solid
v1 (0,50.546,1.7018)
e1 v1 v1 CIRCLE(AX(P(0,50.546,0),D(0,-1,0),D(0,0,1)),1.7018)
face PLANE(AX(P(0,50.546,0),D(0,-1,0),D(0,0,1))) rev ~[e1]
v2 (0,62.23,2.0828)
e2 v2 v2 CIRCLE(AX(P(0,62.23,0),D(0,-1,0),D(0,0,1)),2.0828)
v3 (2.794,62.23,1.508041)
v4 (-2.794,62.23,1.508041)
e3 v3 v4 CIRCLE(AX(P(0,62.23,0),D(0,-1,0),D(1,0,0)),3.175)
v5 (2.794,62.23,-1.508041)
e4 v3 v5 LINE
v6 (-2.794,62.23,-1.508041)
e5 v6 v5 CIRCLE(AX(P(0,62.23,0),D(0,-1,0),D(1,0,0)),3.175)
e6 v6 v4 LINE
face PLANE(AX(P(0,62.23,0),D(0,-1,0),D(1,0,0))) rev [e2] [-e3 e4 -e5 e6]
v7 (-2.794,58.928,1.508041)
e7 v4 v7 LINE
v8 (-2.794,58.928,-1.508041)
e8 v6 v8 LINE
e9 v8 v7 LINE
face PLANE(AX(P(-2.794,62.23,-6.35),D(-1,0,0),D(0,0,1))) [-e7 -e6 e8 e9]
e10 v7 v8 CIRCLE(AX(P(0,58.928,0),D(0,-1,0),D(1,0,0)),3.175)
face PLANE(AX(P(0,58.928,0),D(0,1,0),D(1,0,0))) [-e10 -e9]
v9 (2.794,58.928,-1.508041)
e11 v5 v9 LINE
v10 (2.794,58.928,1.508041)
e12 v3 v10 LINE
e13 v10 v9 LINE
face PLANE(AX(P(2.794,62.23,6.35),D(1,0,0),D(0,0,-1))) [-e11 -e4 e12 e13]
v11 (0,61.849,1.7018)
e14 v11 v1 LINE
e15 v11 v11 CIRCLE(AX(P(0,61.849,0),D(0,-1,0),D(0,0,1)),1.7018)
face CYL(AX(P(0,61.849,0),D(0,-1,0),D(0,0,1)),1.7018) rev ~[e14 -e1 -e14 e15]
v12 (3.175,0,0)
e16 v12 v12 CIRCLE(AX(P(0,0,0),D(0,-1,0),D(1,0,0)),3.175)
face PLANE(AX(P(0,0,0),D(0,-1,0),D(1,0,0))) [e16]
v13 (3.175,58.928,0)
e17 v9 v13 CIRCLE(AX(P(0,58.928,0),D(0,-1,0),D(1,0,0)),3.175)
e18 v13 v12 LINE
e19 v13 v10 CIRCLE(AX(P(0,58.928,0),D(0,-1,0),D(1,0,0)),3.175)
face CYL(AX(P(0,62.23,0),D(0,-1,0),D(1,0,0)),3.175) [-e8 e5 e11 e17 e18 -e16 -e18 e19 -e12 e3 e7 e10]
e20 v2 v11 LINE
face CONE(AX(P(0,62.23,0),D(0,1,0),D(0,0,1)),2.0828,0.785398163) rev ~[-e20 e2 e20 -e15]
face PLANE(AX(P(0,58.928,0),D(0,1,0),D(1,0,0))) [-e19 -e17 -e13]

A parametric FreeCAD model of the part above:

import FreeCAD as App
import Part
import Sketcher

V = App.Vector
Q = App.Units.Quantity

doc = App.newDocument("Part")
params = doc.addObject("Spreadsheet::Sheet", "Params")
for row, (alias, value) in enumerate([
    ("sketch1_height", "2.45 in"),
    ("sketch1_width", "0.125 in"),
    ("revolution_angle", "360 deg"),
    ("sketch2_diameter", "0.134 in"),
    ("hole_diameter", "0.134 in"),
    ("hole_depth", "0.46 in"),
    ("hole_csink_diameter", "0.164 in"),
    ("sketch3_height", "1 in"),
    ("sketch3_height2", "0.5 in"),
    ("sketch3_width", "0.44 in"),
    ("sketch3_width2", "0.22 in"),
    ("pocket1_length", "0.13 in"),
], start=1):
    params.set(f"A{row}", alias)
    params.set(f"B{row}", "=" + value)
    params.setAlias(f"B{row}", alias)

body = doc.addObject("PartDesign::Body", "Body")

# Sketch on XY plane
sketch1 = doc.addObject("Sketcher::SketchObject", "Sketch")
body.addObject(sketch1)
sketch1.AttachmentSupport = (doc.XY_Plane, [""])
sketch1.MapMode = "FlatFace"
sketch1.addGeometry(Part.LineSegment(V(0, 62.2, 0), V(0, 0, 0)), False)
sketch1.addGeometry(Part.LineSegment(V(0, 0, 0), V(3.2, 0, 0)), False)
sketch1.addGeometry(Part.LineSegment(V(3.2, 0, 0), V(3.2, 62.2, 0)), False)
sketch1.addGeometry(Part.LineSegment(V(3.2, 62.2, 0), V(0, 62.2, 0)), False)
sketch1.addConstraint(Sketcher.Constraint("Coincident", 0, 2, 1, 1))
sketch1.addConstraint(Sketcher.Constraint("Coincident", 1, 2, 2, 1))
sketch1.addConstraint(Sketcher.Constraint("Coincident", 2, 2, 3, 1))
sketch1.addConstraint(Sketcher.Constraint("Coincident", 3, 2, 0, 1))
sketch1.addConstraint(Sketcher.Constraint("Vertical", 0))
sketch1.addConstraint(Sketcher.Constraint("Horizontal", 1))
sketch1.addConstraint(Sketcher.Constraint("Vertical", 2))
sketch1.addConstraint(Sketcher.Constraint("Horizontal", 3))
sketch1.addConstraint(Sketcher.Constraint("Coincident", 0, 2, -1, 1))
sketch1.addConstraint(Sketcher.Constraint("DistanceY", 0, 2, 0, 1, Q("2.45 in")))
sketch1.addConstraint(Sketcher.Constraint("DistanceX", 1, 1, 1, 2, Q("0.125 in")))
sketch1.setExpression("Constraints[9]", "Params.sketch1_height")
sketch1.setExpression("Constraints[10]", "Params.sketch1_width")
revolution = doc.addObject("PartDesign::Revolution", "Revolution")
body.addObject(revolution)
revolution.Profile = sketch1
revolution.ReferenceAxis = (sketch1, ["V_Axis"])
revolution.setExpression("Angle", "Params.revolution_angle")

# Sketch on XZ plane
sketch2 = doc.addObject("Sketcher::SketchObject", "Sketch001")
body.addObject(sketch2)
sketch2.AttachmentSupport = (doc.XZ_Plane, [""])
sketch2.MapMode = "FlatFace"
sketch2.AttachmentOffset = App.Placement(V(0, 0, -2.45 * 25.4), App.Rotation())
sketch2.addGeometry(Part.Circle(V(0, 0, 0), V(0, 0, 1), 1.7), False)
sketch2.addConstraint(Sketcher.Constraint("Coincident", 0, 3, -1, 1))
sketch2.addConstraint(Sketcher.Constraint("Diameter", 0, Q("0.134 in")))
sketch2.setExpression("Constraints[1]", "Params.sketch2_diameter")
doc.recompute()
hole = doc.addObject("PartDesign::Hole", "Hole")
body.addObject(hole)
hole.Profile = sketch2
hole.ThreadType = "None"
hole.setExpression("Diameter", "Params.hole_diameter")
hole.DepthType = "Dimension"
hole.setExpression("Depth", "Params.hole_depth")
hole.DrillPoint = "Flat"
hole.HoleCutType = "Countersink"
hole.setExpression("HoleCutDiameter", "Params.hole_csink_diameter")
hole.HoleCutCountersinkAngle = 90
hole.Reversed = True

# Sketch on XZ plane
sketch3 = doc.addObject("Sketcher::SketchObject", "Sketch002")
body.addObject(sketch3)
sketch3.AttachmentSupport = (doc.XZ_Plane, [""])
sketch3.MapMode = "FlatFace"
sketch3.AttachmentOffset = App.Placement(V(0, 0, -2.45 * 25.4), App.Rotation())
sketch3.addGeometry(Part.LineSegment(V(6, -13, 0), V(-6, -13, 0)), False)
sketch3.addGeometry(Part.LineSegment(V(-6, -13, 0), V(-6, 13, 0)), False)
sketch3.addGeometry(Part.LineSegment(V(-6, 13, 0), V(6, 13, 0)), False)
sketch3.addGeometry(Part.LineSegment(V(6, 13, 0), V(6, -13, 0)), False)
sketch3.addGeometry(Part.LineSegment(V(-3, 6, 0), V(-3, -6, 0)), False)
sketch3.addGeometry(Part.LineSegment(V(-3, -6, 0), V(3, -6, 0)), False)
sketch3.addGeometry(Part.LineSegment(V(3, -6, 0), V(3, 6, 0)), False)
sketch3.addGeometry(Part.LineSegment(V(3, 6, 0), V(-3, 6, 0)), False)
sketch3.addConstraint(Sketcher.Constraint("Coincident", 0, 2, 1, 1))
sketch3.addConstraint(Sketcher.Constraint("Coincident", 1, 2, 2, 1))
sketch3.addConstraint(Sketcher.Constraint("Coincident", 2, 2, 3, 1))
sketch3.addConstraint(Sketcher.Constraint("Coincident", 3, 2, 0, 1))
sketch3.addConstraint(Sketcher.Constraint("Coincident", 4, 2, 5, 1))
sketch3.addConstraint(Sketcher.Constraint("Coincident", 5, 2, 6, 1))
sketch3.addConstraint(Sketcher.Constraint("Coincident", 6, 2, 7, 1))
sketch3.addConstraint(Sketcher.Constraint("Coincident", 7, 2, 4, 1))
sketch3.addConstraint(Sketcher.Constraint("Horizontal", 0))
sketch3.addConstraint(Sketcher.Constraint("Vertical", 1))
sketch3.addConstraint(Sketcher.Constraint("Horizontal", 2))
sketch3.addConstraint(Sketcher.Constraint("Vertical", 3))
sketch3.addConstraint(Sketcher.Constraint("Vertical", 4))
sketch3.addConstraint(Sketcher.Constraint("Horizontal", 5))
sketch3.addConstraint(Sketcher.Constraint("Vertical", 6))
sketch3.addConstraint(Sketcher.Constraint("Horizontal", 7))
sketch3.addConstraint(Sketcher.Constraint("Symmetric", 0, 2, 2, 2, -1, 1))
sketch3.addConstraint(Sketcher.Constraint("Symmetric", 4, 2, 6, 2, -1, 1))
sketch3.addConstraint(Sketcher.Constraint("DistanceY", 1, 1, 1, 2, Q("1 in")))
sketch3.addConstraint(Sketcher.Constraint("DistanceY", 4, 2, 4, 1, Q("0.5 in")))
sketch3.addConstraint(Sketcher.Constraint("DistanceX", 0, 2, 0, 1, Q("0.44 in")))
sketch3.addConstraint(Sketcher.Constraint("DistanceX", 5, 1, 5, 2, Q("0.22 in")))
sketch3.setExpression("Constraints[18]", "Params.sketch3_height")
sketch3.setExpression("Constraints[19]", "Params.sketch3_height2")
sketch3.setExpression("Constraints[20]", "Params.sketch3_width")
sketch3.setExpression("Constraints[21]", "Params.sketch3_width2")
pocket1 = doc.addObject("PartDesign::Pocket", "Pocket")
body.addObject(pocket1)
pocket1.Profile = sketch3
pocket1.setExpression("Length", "Params.pocket1_length")
pocket1.Reversed = True

doc.recompute()
